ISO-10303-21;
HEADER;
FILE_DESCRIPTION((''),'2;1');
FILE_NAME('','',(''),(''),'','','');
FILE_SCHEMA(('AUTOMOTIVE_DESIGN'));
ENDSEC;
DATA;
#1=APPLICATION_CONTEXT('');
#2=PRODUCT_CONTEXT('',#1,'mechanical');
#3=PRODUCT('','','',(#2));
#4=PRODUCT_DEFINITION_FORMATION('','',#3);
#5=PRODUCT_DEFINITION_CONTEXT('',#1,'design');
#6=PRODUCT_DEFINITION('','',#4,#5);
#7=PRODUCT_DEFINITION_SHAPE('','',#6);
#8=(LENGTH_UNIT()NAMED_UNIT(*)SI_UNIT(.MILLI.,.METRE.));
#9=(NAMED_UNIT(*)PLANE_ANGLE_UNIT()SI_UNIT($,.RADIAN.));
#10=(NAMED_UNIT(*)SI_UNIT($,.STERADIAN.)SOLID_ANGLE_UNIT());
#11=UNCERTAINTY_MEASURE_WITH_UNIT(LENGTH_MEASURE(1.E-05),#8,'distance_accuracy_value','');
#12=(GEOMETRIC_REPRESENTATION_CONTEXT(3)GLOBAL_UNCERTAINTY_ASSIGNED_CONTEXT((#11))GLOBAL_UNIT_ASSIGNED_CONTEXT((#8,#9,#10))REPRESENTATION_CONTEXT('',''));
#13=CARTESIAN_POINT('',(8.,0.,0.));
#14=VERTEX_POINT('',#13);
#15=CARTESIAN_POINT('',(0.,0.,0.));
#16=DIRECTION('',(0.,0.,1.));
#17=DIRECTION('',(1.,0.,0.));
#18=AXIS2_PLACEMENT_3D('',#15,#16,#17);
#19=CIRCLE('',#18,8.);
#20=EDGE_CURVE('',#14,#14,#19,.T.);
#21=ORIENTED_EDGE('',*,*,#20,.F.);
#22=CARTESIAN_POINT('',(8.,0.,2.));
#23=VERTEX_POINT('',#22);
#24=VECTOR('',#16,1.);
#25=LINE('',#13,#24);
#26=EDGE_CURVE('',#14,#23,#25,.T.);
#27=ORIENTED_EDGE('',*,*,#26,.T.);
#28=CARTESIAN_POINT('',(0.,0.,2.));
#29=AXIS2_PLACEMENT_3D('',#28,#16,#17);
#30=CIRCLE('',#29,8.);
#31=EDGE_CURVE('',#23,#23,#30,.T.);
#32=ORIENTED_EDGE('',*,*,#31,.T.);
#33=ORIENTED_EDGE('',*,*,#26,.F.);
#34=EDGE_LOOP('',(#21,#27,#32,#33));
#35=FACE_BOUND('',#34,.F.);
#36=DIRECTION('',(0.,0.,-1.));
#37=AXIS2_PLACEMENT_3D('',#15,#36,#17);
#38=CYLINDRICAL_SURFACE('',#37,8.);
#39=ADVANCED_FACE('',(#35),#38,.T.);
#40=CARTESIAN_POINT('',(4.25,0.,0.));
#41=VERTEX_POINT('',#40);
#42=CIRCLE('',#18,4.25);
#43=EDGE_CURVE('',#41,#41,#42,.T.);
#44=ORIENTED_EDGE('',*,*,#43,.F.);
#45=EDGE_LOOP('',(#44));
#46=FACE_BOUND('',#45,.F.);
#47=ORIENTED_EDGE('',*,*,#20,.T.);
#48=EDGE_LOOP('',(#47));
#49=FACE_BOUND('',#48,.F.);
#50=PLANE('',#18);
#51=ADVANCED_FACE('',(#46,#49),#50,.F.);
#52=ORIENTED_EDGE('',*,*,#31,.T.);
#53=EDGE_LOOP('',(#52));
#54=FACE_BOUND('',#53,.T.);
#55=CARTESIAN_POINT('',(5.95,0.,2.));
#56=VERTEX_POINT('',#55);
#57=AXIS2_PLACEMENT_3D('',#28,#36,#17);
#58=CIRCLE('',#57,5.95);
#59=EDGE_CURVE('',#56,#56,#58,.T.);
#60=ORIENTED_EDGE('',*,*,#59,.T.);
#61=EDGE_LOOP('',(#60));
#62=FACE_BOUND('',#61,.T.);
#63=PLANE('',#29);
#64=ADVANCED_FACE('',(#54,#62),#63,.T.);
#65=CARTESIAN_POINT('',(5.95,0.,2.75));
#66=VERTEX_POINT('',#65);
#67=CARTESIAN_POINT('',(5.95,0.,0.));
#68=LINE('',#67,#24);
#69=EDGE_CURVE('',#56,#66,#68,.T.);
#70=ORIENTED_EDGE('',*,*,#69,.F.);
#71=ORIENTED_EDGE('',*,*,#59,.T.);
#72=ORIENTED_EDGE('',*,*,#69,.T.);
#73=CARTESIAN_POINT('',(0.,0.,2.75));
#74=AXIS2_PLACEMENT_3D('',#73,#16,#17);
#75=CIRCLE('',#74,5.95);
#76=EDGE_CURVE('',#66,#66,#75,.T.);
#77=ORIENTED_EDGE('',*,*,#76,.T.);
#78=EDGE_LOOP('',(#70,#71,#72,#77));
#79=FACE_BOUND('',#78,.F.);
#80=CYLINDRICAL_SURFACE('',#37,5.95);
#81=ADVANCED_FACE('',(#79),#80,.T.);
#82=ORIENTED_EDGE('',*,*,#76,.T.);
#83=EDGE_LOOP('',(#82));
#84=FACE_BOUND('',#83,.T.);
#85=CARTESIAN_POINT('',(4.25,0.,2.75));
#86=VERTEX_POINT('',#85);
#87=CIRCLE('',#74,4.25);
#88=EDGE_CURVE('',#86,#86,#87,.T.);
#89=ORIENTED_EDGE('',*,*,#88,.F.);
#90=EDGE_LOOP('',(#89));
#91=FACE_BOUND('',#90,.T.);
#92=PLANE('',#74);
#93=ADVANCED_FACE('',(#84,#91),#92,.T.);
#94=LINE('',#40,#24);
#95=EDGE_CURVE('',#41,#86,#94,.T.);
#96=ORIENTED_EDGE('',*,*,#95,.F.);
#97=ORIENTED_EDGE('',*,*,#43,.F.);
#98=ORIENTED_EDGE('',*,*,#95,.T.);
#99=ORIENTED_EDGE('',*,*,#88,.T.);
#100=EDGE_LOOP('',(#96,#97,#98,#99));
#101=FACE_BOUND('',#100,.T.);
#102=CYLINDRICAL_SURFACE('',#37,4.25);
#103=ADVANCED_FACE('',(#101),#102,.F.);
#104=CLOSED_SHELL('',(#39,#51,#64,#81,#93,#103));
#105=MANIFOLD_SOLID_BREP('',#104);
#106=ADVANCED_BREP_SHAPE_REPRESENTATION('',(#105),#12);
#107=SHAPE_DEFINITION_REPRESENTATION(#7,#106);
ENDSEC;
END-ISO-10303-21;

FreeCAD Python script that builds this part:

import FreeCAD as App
import Part
import Sketcher
from FreeCAD import Vector

doc = App.newDocument("Part")
body = doc.addObject("PartDesign::Body", "Body")

# Sketch on XY plane
sketch1 = body.newObject("Sketcher::SketchObject", "Sketch")
sketch1.AttachmentSupport = (doc.getObject("XY_Plane"), [""])
sketch1.MapMode = "FlatFace"
sketch1.addGeometry(Part.Circle(Vector(0, 0, 0), Vector(0, 0, 1), 8), False)
sketch1.addGeometry(Part.Circle(Vector(0, 0, 0), Vector(0, 0, 1), 4.25), False)
sketch1.addConstraint(Sketcher.Constraint("Coincident", 0, 3, -1, 1))
sketch1.addConstraint(Sketcher.Constraint("Coincident", 1, 3, -1, 1))
sketch1.addConstraint(Sketcher.Constraint("Diameter", 0, 16.0))
sketch1.addConstraint(Sketcher.Constraint("Diameter", 1, 8.5))
pad1 = body.newObject("PartDesign::Pad", "Pad")
pad1.Profile = sketch1
pad1.Length = 2
body2 = doc.addObject("PartDesign::Body", "Body001")

# Sketch on XY plane
sketch2 = body2.newObject("Sketcher::SketchObject", "Sketch001")
sketch2.AttachmentSupport = (doc.getObject("XY_Plane001"), [""])
sketch2.MapMode = "FlatFace"
sketch2.addGeometry(Part.Circle(Vector(0, 0, 0), Vector(0, 0, 1), 5.95), False)
sketch2.addGeometry(Part.Circle(Vector(0, 0, 0), Vector(0, 0, 1), 4.25), False)
sketch2.addConstraint(Sketcher.Constraint("Coincident", 0, 3, -1, 1))
sketch2.addConstraint(Sketcher.Constraint("Coincident", 1, 3, -1, 1))
sketch2.addConstraint(Sketcher.Constraint("Diameter", 0, 11.9))
sketch2.addConstraint(Sketcher.Constraint("Diameter", 1, 8.5))
pad2 = body2.newObject("PartDesign::Pad", "Pad001")
pad2.Profile = sketch2
pad2.Length = 2.75
doc.recompute()

boolean = body2.newObject("PartDesign::Boolean", "Boolean")
boolean.Type = "Fuse"
boolean.addObjects([body])

doc.recompute()
